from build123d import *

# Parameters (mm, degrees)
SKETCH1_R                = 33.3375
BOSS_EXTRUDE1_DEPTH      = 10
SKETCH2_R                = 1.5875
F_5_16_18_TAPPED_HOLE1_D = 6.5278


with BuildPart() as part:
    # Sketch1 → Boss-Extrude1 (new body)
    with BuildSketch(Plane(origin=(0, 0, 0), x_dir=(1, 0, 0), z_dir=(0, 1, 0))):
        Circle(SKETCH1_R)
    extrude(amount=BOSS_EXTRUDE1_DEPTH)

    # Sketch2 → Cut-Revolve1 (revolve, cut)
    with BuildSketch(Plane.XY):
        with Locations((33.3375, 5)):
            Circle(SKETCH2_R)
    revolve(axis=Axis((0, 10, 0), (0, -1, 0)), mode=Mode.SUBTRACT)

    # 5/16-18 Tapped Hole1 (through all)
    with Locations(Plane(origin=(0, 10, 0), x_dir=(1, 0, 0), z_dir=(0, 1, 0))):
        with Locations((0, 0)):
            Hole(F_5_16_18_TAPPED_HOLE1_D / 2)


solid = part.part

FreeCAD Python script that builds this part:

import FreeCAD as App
import Part
import Sketcher

V = App.Vector
Q = App.Units.Quantity

doc = App.newDocument("Part")
body = doc.addObject("PartDesign::Body", "Body")

sketch1 = body.newObject("Sketcher::SketchObject", "Sketch")
sketch1.AttachmentSupport = (doc.getObject("XZ_Plane"), [""])
sketch1.MapMode = "FlatFace"
sketch1.addGeometry(Part.Circle(V(0, 0, 0), V(0, 0, 1), 33.3375), False)
sketch1.addConstraint([
    Sketcher.Constraint("Coincident", 0, 3, -1, 1),
    Sketcher.Constraint("Diameter", 0, Q("2.625 in")),
])
pad1 = body.newObject("PartDesign::Pad", "Pad")
pad1.Profile = sketch1
pad1.Length = 10
pad1.Reversed = True

sketch2 = body.newObject("Sketcher::SketchObject", "Sketch001")
sketch2.AttachmentSupport = (doc.getObject("XY_Plane"), [""])
sketch2.MapMode = "FlatFace"
sketch2.addGeometry(Part.Circle(V(33.3375, 5, 0), V(0, 0, 1), 1.5875), False)
sketch2.addConstraint([
    Sketcher.Constraint("Diameter", 0, Q("0.125 in")),
    Sketcher.Constraint("DistanceX", -1, 1, 0, 3, Q("1.3125 in")),
    Sketcher.Constraint("DistanceY", -1, 1, 0, 3, 5.0),
])
groove = body.newObject("PartDesign::Groove", "Groove")
groove.Profile = sketch2
groove.ReferenceAxis = (sketch2, ["V_Axis"])
groove.Angle = 360

sketch3 = body.newObject("Sketcher::SketchObject", "Sketch002")
sketch3.AttachmentSupport = (doc.getObject("XZ_Plane"), [""])
sketch3.MapMode = "FlatFace"
sketch3.AttachmentOffset = App.Placement(V(0, 0, -10), App.Rotation())
sketch3.addGeometry(Part.Circle(V(0, 0, 0), V(0, 0, 1), 3.2639), False)
sketch3.addConstraint([
    Sketcher.Constraint("Coincident", 0, 3, -1, 1),
    Sketcher.Constraint("Diameter", 0, Q("0.257 in")),
])
doc.recompute()
hole = body.newObject("PartDesign::Hole", "Hole")
hole.Profile = sketch3
hole.ThreadType = "None"
hole.Diameter = Q("0.257 in")
hole.DepthType = "ThroughAll"
hole.Reversed = True

doc.recompute()
